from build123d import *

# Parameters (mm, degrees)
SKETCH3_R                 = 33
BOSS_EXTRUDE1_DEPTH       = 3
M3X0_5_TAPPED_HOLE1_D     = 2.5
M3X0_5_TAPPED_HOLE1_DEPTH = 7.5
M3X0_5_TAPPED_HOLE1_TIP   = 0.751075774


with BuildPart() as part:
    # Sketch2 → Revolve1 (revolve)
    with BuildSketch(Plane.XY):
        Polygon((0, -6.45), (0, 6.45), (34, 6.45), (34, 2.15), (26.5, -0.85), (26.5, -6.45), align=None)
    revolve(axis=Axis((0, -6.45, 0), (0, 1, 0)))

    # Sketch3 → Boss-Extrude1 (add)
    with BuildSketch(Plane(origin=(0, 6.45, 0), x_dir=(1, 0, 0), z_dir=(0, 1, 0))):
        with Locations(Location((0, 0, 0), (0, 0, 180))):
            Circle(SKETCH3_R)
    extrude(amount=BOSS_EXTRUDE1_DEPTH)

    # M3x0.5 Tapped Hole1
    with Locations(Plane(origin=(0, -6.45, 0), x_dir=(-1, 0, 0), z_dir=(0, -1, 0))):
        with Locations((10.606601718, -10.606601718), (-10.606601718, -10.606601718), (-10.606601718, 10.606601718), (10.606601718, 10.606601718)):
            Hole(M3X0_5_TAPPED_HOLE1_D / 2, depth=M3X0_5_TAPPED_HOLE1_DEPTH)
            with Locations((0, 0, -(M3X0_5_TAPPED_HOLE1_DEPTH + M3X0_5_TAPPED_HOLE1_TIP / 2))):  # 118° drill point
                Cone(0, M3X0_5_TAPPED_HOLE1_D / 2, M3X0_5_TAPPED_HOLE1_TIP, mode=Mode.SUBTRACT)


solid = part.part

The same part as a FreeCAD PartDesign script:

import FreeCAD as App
import Part
import Sketcher

V = App.Vector
Q = App.Units.Quantity

doc = App.newDocument("Part")
body = doc.addObject("PartDesign::Body", "Body")

sketch1 = body.newObject("Sketcher::SketchObject", "Sketch")
sketch1.AttachmentSupport = (doc.getObject("XY_Plane"), [""])
sketch1.MapMode = "FlatFace"
sketch1.addGeometry([
    Part.LineSegment(V(0, 6.45, 0), V(0, -6.45, 0)),
    Part.LineSegment(V(0, -6.45, 0), V(26.5, -6.45, 0)),
    Part.LineSegment(V(26.5, -6.45, 0), V(26.5, -0.85, 0)),
    Part.LineSegment(V(26.5, -0.85, 0), V(34, 2.15, 0)),
    Part.LineSegment(V(34, 2.15, 0), V(34, 6.45, 0)),
    Part.LineSegment(V(34, 6.45, 0), V(0, 6.45, 0)),
], False)
sketch1.addConstraint([
    Sketcher.Constraint("Coincident", 0, 2, 1, 1),
    Sketcher.Constraint("Coincident", 1, 2, 2, 1),
    Sketcher.Constraint("Coincident", 2, 2, 3, 1),
    Sketcher.Constraint("Coincident", 3, 2, 4, 1),
    Sketcher.Constraint("Coincident", 4, 2, 5, 1),
    Sketcher.Constraint("Coincident", 5, 2, 0, 1),
    Sketcher.Constraint("Vertical", 0),
    Sketcher.Constraint("Horizontal", 1),
    Sketcher.Constraint("Vertical", 2),
    Sketcher.Constraint("Vertical", 4),
    Sketcher.Constraint("Horizontal", 5),
    Sketcher.Constraint("Symmetric", 0, 2, 5, 2, -1, 1),
    Sketcher.Constraint("DistanceX", 5, 2, 5, 1, Q("34 mm")),
    Sketcher.Constraint("DistanceX", 1, 1, 1, 2, Q("26.5 mm")),
    Sketcher.Constraint("DistanceY", 0, 2, 0, 1, Q("12.9 mm")),
    Sketcher.Constraint("DistanceY", 2, 1, 2, 2, Q("5.6 mm")),
    Sketcher.Constraint("DistanceY", 4, 1, 4, 2, Q("4.3 mm")),
])
revolution = body.newObject("PartDesign::Revolution", "Revolution")
revolution.Profile = sketch1
revolution.ReferenceAxis = (sketch1, ["V_Axis"])
revolution.Angle = 360

sketch2 = body.newObject("Sketcher::SketchObject", "Sketch001")
sketch2.AttachmentSupport = (doc.getObject("XZ_Plane"), [""])
sketch2.MapMode = "FlatFace"
sketch2.AttachmentOffset = App.Placement(V(0, 0, -6.45), App.Rotation())
sketch2.addGeometry(Part.Circle(V(0, 0, 0), V(0, 0, 1), 33), False)
sketch2.addConstraint([
    Sketcher.Constraint("Coincident", 0, 3, -1, 1),
    Sketcher.Constraint("Diameter", 0, Q("66 mm")),
])
pad1 = body.newObject("PartDesign::Pad", "Pad")
pad1.Profile = sketch2
pad1.Length = 3
pad1.Reversed = True

sketch3 = body.newObject("Sketcher::SketchObject", "Sketch002")
sketch3.AttachmentSupport = (doc.getObject("XZ_Plane"), [""])
sketch3.MapMode = "FlatFace"
sketch3.AttachmentOffset = App.Placement(V(0, 0, 6.45), App.Rotation())
sketch3.addGeometry([
    Part.Circle(V(-10.606602, 10.606602, 0), V(0, 0, 1), 1.25),
    Part.Circle(V(10.606602, 10.606602, 0), V(0, 0, 1), 1.25),
    Part.Circle(V(10.606602, -10.606602, 0), V(0, 0, 1), 1.25),
    Part.Circle(V(-10.606602, -10.606602, 0), V(0, 0, 1), 1.25),
], False)
sketch3.addConstraint([
    Sketcher.Constraint("Equal", 0, 1),
    Sketcher.Constraint("Equal", 1, 2),
    Sketcher.Constraint("Equal", 2, 3),
    Sketcher.Constraint("Symmetric", 0, 3, 2, 3, -1, 1),
    Sketcher.Constraint("Symmetric", 1, 3, 3, 3, -1, 1),
    Sketcher.Constraint("Symmetric", 0, 3, 1, 3, -2),
    Sketcher.Constraint("Diameter", 0, Q("2.5 mm")),
    Sketcher.Constraint("DistanceX", 0, 3, -1, 1, Q("10.606602 mm")),
    Sketcher.Constraint("DistanceY", -1, 1, 0, 3, Q("10.606602 mm")),
])
doc.recompute()
hole = body.newObject("PartDesign::Hole", "Hole")
hole.Profile = sketch3
hole.ThreadType = "None"
hole.Diameter = 2.5
hole.DepthType = "Dimension"
hole.Depth = 7.5
hole.DrillPoint = "Angled"
hole.DrillPointAngle = 118

doc.recompute()
